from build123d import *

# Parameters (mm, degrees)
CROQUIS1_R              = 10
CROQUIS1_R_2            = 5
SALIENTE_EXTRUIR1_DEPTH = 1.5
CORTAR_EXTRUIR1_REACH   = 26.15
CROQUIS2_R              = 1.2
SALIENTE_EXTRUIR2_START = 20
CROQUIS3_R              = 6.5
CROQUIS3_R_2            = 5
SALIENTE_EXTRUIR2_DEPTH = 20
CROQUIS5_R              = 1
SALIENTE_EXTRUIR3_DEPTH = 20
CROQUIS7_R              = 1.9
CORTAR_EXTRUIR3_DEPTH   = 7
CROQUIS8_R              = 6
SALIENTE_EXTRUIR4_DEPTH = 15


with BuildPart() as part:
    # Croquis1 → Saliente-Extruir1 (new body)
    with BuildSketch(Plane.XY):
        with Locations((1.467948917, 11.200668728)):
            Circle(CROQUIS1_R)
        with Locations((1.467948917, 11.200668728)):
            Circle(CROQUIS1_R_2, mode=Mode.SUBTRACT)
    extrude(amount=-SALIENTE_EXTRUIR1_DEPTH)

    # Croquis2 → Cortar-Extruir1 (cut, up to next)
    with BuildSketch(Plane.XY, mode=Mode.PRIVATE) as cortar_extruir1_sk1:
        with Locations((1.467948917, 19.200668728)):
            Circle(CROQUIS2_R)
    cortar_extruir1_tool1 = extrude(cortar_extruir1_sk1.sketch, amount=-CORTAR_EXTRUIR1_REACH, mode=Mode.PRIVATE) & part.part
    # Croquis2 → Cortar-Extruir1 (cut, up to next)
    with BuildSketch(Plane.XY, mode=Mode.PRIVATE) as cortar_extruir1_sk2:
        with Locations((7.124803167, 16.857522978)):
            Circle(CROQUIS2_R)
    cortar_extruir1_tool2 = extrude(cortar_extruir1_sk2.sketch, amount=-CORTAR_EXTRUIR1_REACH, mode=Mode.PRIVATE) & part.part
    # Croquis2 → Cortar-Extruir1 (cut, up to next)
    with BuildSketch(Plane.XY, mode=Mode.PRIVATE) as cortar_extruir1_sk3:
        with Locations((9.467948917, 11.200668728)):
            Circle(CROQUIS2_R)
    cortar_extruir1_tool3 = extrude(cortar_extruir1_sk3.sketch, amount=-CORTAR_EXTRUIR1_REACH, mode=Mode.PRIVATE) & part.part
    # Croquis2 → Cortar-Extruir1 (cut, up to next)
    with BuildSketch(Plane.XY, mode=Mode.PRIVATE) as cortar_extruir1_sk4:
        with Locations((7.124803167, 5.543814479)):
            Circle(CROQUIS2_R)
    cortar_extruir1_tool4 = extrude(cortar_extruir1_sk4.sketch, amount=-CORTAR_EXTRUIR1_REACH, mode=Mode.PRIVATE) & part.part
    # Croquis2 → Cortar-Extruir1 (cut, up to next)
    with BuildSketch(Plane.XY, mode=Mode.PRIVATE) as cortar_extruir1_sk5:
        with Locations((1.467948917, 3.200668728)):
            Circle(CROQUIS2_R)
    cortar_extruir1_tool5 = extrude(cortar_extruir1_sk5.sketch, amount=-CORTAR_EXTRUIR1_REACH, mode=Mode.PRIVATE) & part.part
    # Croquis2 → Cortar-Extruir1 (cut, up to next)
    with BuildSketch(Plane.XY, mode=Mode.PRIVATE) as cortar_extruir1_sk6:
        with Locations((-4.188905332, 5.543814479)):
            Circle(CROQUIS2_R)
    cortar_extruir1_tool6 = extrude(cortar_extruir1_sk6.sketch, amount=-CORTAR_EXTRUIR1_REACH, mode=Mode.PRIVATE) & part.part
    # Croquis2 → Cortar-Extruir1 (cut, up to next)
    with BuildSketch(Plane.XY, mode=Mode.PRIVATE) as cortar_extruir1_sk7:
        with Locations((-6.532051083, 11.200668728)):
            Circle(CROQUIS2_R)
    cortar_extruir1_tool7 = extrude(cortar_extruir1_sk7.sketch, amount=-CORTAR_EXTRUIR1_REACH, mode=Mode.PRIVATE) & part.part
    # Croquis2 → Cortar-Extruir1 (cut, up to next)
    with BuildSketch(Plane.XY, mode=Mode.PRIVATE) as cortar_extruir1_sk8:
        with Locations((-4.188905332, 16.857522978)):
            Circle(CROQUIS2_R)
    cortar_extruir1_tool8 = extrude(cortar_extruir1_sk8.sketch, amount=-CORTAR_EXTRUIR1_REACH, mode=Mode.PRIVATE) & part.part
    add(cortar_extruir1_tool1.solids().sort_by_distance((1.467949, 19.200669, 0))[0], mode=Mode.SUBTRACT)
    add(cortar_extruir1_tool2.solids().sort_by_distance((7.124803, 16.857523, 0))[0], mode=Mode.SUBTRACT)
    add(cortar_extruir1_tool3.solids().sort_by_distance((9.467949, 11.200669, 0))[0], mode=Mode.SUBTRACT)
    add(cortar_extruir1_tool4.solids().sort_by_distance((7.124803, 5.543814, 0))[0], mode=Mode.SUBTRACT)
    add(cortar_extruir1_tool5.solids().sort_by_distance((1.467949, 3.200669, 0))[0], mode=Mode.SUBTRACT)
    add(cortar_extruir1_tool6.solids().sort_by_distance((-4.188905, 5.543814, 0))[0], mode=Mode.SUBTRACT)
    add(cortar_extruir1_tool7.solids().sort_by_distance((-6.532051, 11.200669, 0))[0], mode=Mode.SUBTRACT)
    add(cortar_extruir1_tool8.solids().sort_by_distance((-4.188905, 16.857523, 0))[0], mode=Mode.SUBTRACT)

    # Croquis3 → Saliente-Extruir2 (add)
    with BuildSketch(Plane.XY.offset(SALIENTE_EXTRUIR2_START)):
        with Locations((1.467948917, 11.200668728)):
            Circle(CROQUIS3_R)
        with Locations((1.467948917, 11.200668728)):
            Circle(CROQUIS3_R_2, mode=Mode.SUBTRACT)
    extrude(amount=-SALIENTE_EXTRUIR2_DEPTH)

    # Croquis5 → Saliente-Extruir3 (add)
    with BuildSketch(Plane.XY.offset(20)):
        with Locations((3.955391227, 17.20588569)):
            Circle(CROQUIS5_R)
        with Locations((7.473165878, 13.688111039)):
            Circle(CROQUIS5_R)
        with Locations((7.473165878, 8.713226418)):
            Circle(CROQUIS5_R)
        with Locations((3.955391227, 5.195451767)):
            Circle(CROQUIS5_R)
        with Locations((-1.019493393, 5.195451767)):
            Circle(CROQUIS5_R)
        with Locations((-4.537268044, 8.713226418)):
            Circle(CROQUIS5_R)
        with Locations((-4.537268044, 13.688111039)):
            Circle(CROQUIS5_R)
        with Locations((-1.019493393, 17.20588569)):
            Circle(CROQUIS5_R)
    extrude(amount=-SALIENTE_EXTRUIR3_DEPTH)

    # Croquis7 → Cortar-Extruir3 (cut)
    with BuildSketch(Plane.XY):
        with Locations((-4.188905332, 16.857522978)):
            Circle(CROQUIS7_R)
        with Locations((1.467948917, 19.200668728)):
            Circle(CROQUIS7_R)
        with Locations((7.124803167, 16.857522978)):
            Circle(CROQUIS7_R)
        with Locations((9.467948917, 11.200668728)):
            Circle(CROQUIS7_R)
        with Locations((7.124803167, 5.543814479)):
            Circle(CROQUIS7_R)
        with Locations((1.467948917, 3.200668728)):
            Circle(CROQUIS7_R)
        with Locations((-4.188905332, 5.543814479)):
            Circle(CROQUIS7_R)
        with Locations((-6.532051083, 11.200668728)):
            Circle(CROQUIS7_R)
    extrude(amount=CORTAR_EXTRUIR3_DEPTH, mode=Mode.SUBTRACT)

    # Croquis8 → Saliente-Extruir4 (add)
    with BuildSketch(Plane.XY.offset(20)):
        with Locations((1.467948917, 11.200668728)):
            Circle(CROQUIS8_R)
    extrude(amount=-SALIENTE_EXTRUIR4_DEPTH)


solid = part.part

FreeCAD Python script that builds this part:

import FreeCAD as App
import Part
import Sketcher
from FreeCAD import Vector
Q = App.Units.Quantity

doc = App.newDocument("Part")
body = doc.addObject("PartDesign::Body", "Body")

# Sketch on XY plane
sketch1 = body.newObject("Sketcher::SketchObject", "Sketch")
sketch1.AttachmentSupport = (doc.getObject("XY_Plane"), [""])
sketch1.MapMode = "FlatFace"
sketch1.addGeometry(Part.Circle(Vector(1, 11, 0), Vector(0, 0, 1), 10), False)
sketch1.addGeometry(Part.Circle(Vector(1, 11, 0), Vector(0, 0, 1), 5), False)
sketch1.addConstraint(Sketcher.Constraint("Coincident", 1, 3, 0, 3))
sketch1.addConstraint(Sketcher.Constraint("Diameter", 0, Q("20 mm")))
sketch1.addConstraint(Sketcher.Constraint("Diameter", 1, Q("10 mm")))
sketch1.addConstraint(Sketcher.Constraint("DistanceX", -1, 1, 0, 3, Q("1.467949 mm")))
sketch1.addConstraint(Sketcher.Constraint("DistanceY", -1, 1, 0, 3, Q("11.200669 mm")))
pad1 = body.newObject("PartDesign::Pad", "Pad")
pad1.Profile = sketch1
pad1.Length = 1.5
pad1.Reversed = True

# Sketch on XY plane
sketch2 = body.newObject("Sketcher::SketchObject", "Sketch001")
sketch2.AttachmentSupport = (doc.getObject("XY_Plane"), [""])
sketch2.MapMode = "FlatFace"
sketch2.addGeometry(Part.Circle(Vector(1.5, 19.2, 0), Vector(0, 0, 1), 1.2), False)
sketch2.addConstraint(Sketcher.Constraint("Diameter", 0, Q("2.4 mm")))
sketch2.addConstraint(Sketcher.Constraint("DistanceX", -1, 1, 0, 3, Q("1.467949 mm")))
sketch2.addConstraint(Sketcher.Constraint("DistanceY", -1, 1, 0, 3, Q("19.200669 mm")))
pocket1 = body.newObject("PartDesign::Pocket", "Pocket")
pocket1.Profile = sketch2
pocket1.Type = "UpToFirst"

# Sketch on XY plane
sketch3 = body.newObject("Sketcher::SketchObject", "Sketch002")
sketch3.AttachmentSupport = (doc.getObject("XY_Plane"), [""])
sketch3.MapMode = "FlatFace"
sketch3.addGeometry(Part.Circle(Vector(7.1, 16.9, 0), Vector(0, 0, 1), 1.2), False)
sketch3.addConstraint(Sketcher.Constraint("Diameter", 0, Q("2.4 mm")))
sketch3.addConstraint(Sketcher.Constraint("DistanceX", -1, 1, 0, 3, Q("7.124803 mm")))
sketch3.addConstraint(Sketcher.Constraint("DistanceY", -1, 1, 0, 3, Q("16.857523 mm")))
pocket2 = body.newObject("PartDesign::Pocket", "Pocket001")
pocket2.Profile = sketch3
pocket2.Type = "UpToFirst"

# Sketch on XY plane
sketch4 = body.newObject("Sketcher::SketchObject", "Sketch003")
sketch4.AttachmentSupport = (doc.getObject("XY_Plane"), [""])
sketch4.MapMode = "FlatFace"
sketch4.addGeometry(Part.Circle(Vector(9.5, 11.2, 0), Vector(0, 0, 1), 1.2), False)
sketch4.addConstraint(Sketcher.Constraint("Diameter", 0, Q("2.4 mm")))
sketch4.addConstraint(Sketcher.Constraint("DistanceX", -1, 1, 0, 3, Q("9.467949 mm")))
sketch4.addConstraint(Sketcher.Constraint("DistanceY", -1, 1, 0, 3, Q("11.200669 mm")))
pocket3 = body.newObject("PartDesign::Pocket", "Pocket002")
pocket3.Profile = sketch4
pocket3.Type = "UpToFirst"

# Sketch on XY plane
sketch5 = body.newObject("Sketcher::SketchObject", "Sketch004")
sketch5.AttachmentSupport = (doc.getObject("XY_Plane"), [""])
sketch5.MapMode = "FlatFace"
sketch5.addGeometry(Part.Circle(Vector(7.1, 5.5, 0), Vector(0, 0, 1), 1.2), False)
sketch5.addConstraint(Sketcher.Constraint("Diameter", 0, Q("2.4 mm")))
sketch5.addConstraint(Sketcher.Constraint("DistanceX", -1, 1, 0, 3, Q("7.124803 mm")))
sketch5.addConstraint(Sketcher.Constraint("DistanceY", -1, 1, 0, 3, Q("5.543814 mm")))
pocket4 = body.newObject("PartDesign::Pocket", "Pocket003")
pocket4.Profile = sketch5
pocket4.Type = "UpToFirst"

# Sketch on XY plane
sketch6 = body.newObject("Sketcher::SketchObject", "Sketch005")
sketch6.AttachmentSupport = (doc.getObject("XY_Plane"), [""])
sketch6.MapMode = "FlatFace"
sketch6.addGeometry(Part.Circle(Vector(1.5, 3.2, 0), Vector(0, 0, 1), 1.2), False)
sketch6.addConstraint(Sketcher.Constraint("Diameter", 0, Q("2.4 mm")))
sketch6.addConstraint(Sketcher.Constraint("DistanceX", -1, 1, 0, 3, Q("1.467949 mm")))
sketch6.addConstraint(Sketcher.Constraint("DistanceY", -1, 1, 0, 3, Q("3.200669 mm")))
pocket5 = body.newObject("PartDesign::Pocket", "Pocket004")
pocket5.Profile = sketch6
pocket5.Type = "UpToFirst"

# Sketch on XY plane
sketch7 = body.newObject("Sketcher::SketchObject", "Sketch006")
sketch7.AttachmentSupport = (doc.getObject("XY_Plane"), [""])
sketch7.MapMode = "FlatFace"
sketch7.addGeometry(Part.Circle(Vector(-4.2, 5.5, 0), Vector(0, 0, 1), 1.2), False)
sketch7.addConstraint(Sketcher.Constraint("Diameter", 0, Q("2.4 mm")))
sketch7.addConstraint(Sketcher.Constraint("DistanceX", 0, 3, -1, 1, Q("4.188905 mm")))
sketch7.addConstraint(Sketcher.Constraint("DistanceY", -1, 1, 0, 3, Q("5.543814 mm")))
pocket6 = body.newObject("PartDesign::Pocket", "Pocket005")
pocket6.Profile = sketch7
pocket6.Type = "UpToFirst"

# Sketch on XY plane
sketch8 = body.newObject("Sketcher::SketchObject", "Sketch007")
sketch8.AttachmentSupport = (doc.getObject("XY_Plane"), [""])
sketch8.MapMode = "FlatFace"
sketch8.addGeometry(Part.Circle(Vector(-6.5, 11.2, 0), Vector(0, 0, 1), 1.2), False)
sketch8.addConstraint(Sketcher.Constraint("Diameter", 0, Q("2.4 mm")))
sketch8.addConstraint(Sketcher.Constraint("DistanceX", 0, 3, -1, 1, Q("6.532051 mm")))
sketch8.addConstraint(Sketcher.Constraint("DistanceY", -1, 1, 0, 3, Q("11.200669 mm")))
pocket7 = body.newObject("PartDesign::Pocket", "Pocket006")
pocket7.Profile = sketch8
pocket7.Type = "UpToFirst"

# Sketch on XY plane
sketch9 = body.newObject("Sketcher::SketchObject", "Sketch008")
sketch9.AttachmentSupport = (doc.getObject("XY_Plane"), [""])
sketch9.MapMode = "FlatFace"
sketch9.addGeometry(Part.Circle(Vector(-4.2, 16.9, 0), Vector(0, 0, 1), 1.2), False)
sketch9.addConstraint(Sketcher.Constraint("Diameter", 0, Q("2.4 mm")))
sketch9.addConstraint(Sketcher.Constraint("DistanceX", 0, 3, -1, 1, Q("4.188905 mm")))
sketch9.addConstraint(Sketcher.Constraint("DistanceY", -1, 1, 0, 3, Q("16.857523 mm")))
pocket8 = body.newObject("PartDesign::Pocket", "Pocket007")
pocket8.Profile = sketch9
pocket8.Type = "UpToFirst"

# Sketch on XY plane
sketch10 = body.newObject("Sketcher::SketchObject", "Sketch009")
sketch10.AttachmentSupport = (doc.getObject("XY_Plane"), [""])
sketch10.MapMode = "FlatFace"
sketch10.AttachmentOffset = App.Placement(Vector(0, 0, 20), App.Rotation())
sketch10.addGeometry(Part.Circle(Vector(1, 11, 0), Vector(0, 0, 1), 6), False)
sketch10.addGeometry(Part.Circle(Vector(1, 11, 0), Vector(0, 0, 1), 5), False)
sketch10.addConstraint(Sketcher.Constraint("Coincident", 1, 3, 0, 3))
sketch10.addConstraint(Sketcher.Constraint("Diameter", 0, Q("13 mm")))
sketch10.addConstraint(Sketcher.Constraint("Diameter", 1, Q("10 mm")))
sketch10.addConstraint(Sketcher.Constraint("DistanceX", -1, 1, 0, 3, Q("1.467949 mm")))
sketch10.addConstraint(Sketcher.Constraint("DistanceY", -1, 1, 0, 3, Q("11.200669 mm")))
pad2 = body.newObject("PartDesign::Pad", "Pad001")
pad2.Profile = sketch10
pad2.Length = 20
pad2.Reversed = True

# Sketch on XY plane
sketch11 = body.newObject("Sketcher::SketchObject", "Sketch010")
sketch11.AttachmentSupport = (doc.getObject("XY_Plane"), [""])
sketch11.MapMode = "FlatFace"
sketch11.AttachmentOffset = App.Placement(Vector(0, 0, 20), App.Rotation())
sketch11.addGeometry(Part.Circle(Vector(4, 17.2, 0), Vector(0, 0, 1), 1), False)
sketch11.addGeometry(Part.Circle(Vector(7.5, 13.7, 0), Vector(0, 0, 1), 1), False)
sketch11.addGeometry(Part.Circle(Vector(7.5, 8.7, 0), Vector(0, 0, 1), 1), False)
sketch11.addGeometry(Part.Circle(Vector(4, 5.2, 0), Vector(0, 0, 1), 1), False)
sketch11.addGeometry(Part.Circle(Vector(-1, 5.2, 0), Vector(0, 0, 1), 1), False)
sketch11.addGeometry(Part.Circle(Vector(-4.5, 8.7, 0), Vector(0, 0, 1), 1), False)
sketch11.addGeometry(Part.Circle(Vector(-4.5, 13.7, 0), Vector(0, 0, 1), 1), False)
sketch11.addGeometry(Part.Circle(Vector(-1, 17.2, 0), Vector(0, 0, 1), 1), False)
sketch11.addConstraint(Sketcher.Constraint("Equal", 0, 1))
sketch11.addConstraint(Sketcher.Constraint("Equal", 1, 2))
sketch11.addConstraint(Sketcher.Constraint("Equal", 2, 3))
sketch11.addConstraint(Sketcher.Constraint("Equal", 3, 4))
sketch11.addConstraint(Sketcher.Constraint("Equal", 4, 5))
sketch11.addConstraint(Sketcher.Constraint("Equal", 5, 6))
sketch11.addConstraint(Sketcher.Constraint("Equal", 6, 7))
sketch11.addConstraint(Sketcher.Constraint("Horizontal", 3, 3, 4, 3))
sketch11.addConstraint(Sketcher.Constraint("Horizontal", 2, 3, 5, 3))
sketch11.addConstraint(Sketcher.Constraint("Horizontal", 1, 3, 6, 3))
sketch11.addConstraint(Sketcher.Constraint("Horizontal", 0, 3, 7, 3))
sketch11.addConstraint(Sketcher.Constraint("Vertical", 1, 3, 2, 3))
sketch11.addConstraint(Sketcher.Constraint("Vertical", 0, 3, 3, 3))
sketch11.addConstraint(Sketcher.Constraint("Vertical", 5, 3, 6, 3))
sketch11.addConstraint(Sketcher.Constraint("Vertical", 4, 3, 7, 3))
sketch11.addConstraint(Sketcher.Constraint("Diameter", 0, Q("2 mm")))
sketch11.addConstraint(Sketcher.Constraint("DistanceX", -1, 1, 0, 3, Q("3.955391 mm")))
sketch11.addConstraint(Sketcher.Constraint("DistanceY", -1, 1, 1, 3, Q("13.688111 mm")))
sketch11.addConstraint(Sketcher.Constraint("DistanceY", -1, 1, 3, 3, Q("5.195452 mm")))
sketch11.addConstraint(Sketcher.Constraint("DistanceX", 5, 3, -1, 1, Q("4.537268 mm")))
sketch11.addConstraint(Sketcher.Constraint("DistanceY", 2, 3, 0, 3, Q("8.492659 mm")))
sketch11.addConstraint(Sketcher.Constraint("DistanceX", 4, 3, 2, 3, Q("8.492659 mm")))
sketch11.addConstraint(Sketcher.Constraint("DistanceY", -1, 1, 0, 3, Q("17.205886 mm")))
sketch11.addConstraint(Sketcher.Constraint("DistanceX", -1, 1, 1, 3, Q("7.473166 mm")))
pad3 = body.newObject("PartDesign::Pad", "Pad002")
pad3.Profile = sketch11
pad3.Length = 20
pad3.Reversed = True

# Sketch on XY plane
sketch12 = body.newObject("Sketcher::SketchObject", "Sketch011")
sketch12.AttachmentSupport = (doc.getObject("XY_Plane"), [""])
sketch12.MapMode = "FlatFace"
sketch12.addGeometry(Part.Circle(Vector(-4.2, 16.9, 0), Vector(0, 0, 1), 1.9), False)
sketch12.addGeometry(Part.Circle(Vector(1.5, 19.2, 0), Vector(0, 0, 1), 1.9), False)
sketch12.addGeometry(Part.Circle(Vector(7.1, 16.9, 0), Vector(0, 0, 1), 1.9), False)
sketch12.addGeometry(Part.Circle(Vector(9.5, 11.2, 0), Vector(0, 0, 1), 1.9), False)
sketch12.addGeometry(Part.Circle(Vector(7.1, 5.5, 0), Vector(0, 0, 1), 1.9), False)
sketch12.addGeometry(Part.Circle(Vector(1.5, 3.2, 0), Vector(0, 0, 1), 1.9), False)
sketch12.addGeometry(Part.Circle(Vector(-4.2, 5.5, 0), Vector(0, 0, 1), 1.9), False)
sketch12.addGeometry(Part.Circle(Vector(-6.5, 11.2, 0), Vector(0, 0, 1), 1.9), False)
sketch12.addConstraint(Sketcher.Constraint("Equal", 0, 1))
sketch12.addConstraint(Sketcher.Constraint("Equal", 1, 2))
sketch12.addConstraint(Sketcher.Constraint("Equal", 2, 3))
sketch12.addConstraint(Sketcher.Constraint("Equal", 3, 4))
sketch12.addConstraint(Sketcher.Constraint("Equal", 4, 5))
sketch12.addConstraint(Sketcher.Constraint("Equal", 5, 6))
sketch12.addConstraint(Sketcher.Constraint("Equal", 6, 7))
sketch12.addConstraint(Sketcher.Constraint("Horizontal", 0, 3, 2, 3))
sketch12.addConstraint(Sketcher.Constraint("Horizontal", 4, 3, 6, 3))
sketch12.addConstraint(Sketcher.Constraint("Horizontal", 3, 3, 7, 3))
sketch12.addConstraint(Sketcher.Constraint("Vertical", 2, 3, 4, 3))
sketch12.addConstraint(Sketcher.Constraint("Vertical", 1, 3, 5, 3))
sketch12.addConstraint(Sketcher.Constraint("Vertical", 0, 3, 6, 3))
sketch12.addConstraint(Sketcher.Constraint("Diameter", 0, Q("3.8 mm")))
sketch12.addConstraint(Sketcher.Constraint("DistanceX", 1, 3, 3, 3, Q("8 mm")))
sketch12.addConstraint(Sketcher.Constraint("DistanceY", 3, 3, 1, 3, Q("8 mm")))
sketch12.addConstraint(Sketcher.Constraint("DistanceY", 5, 3, 3, 3, Q("8 mm")))
sketch12.addConstraint(Sketcher.Constraint("DistanceX", 7, 3, 1, 3, Q("8 mm")))
sketch12.addConstraint(Sketcher.Constraint("DistanceX", -1, 1, 1, 3, Q("1.467949 mm")))
sketch12.addConstraint(Sketcher.Constraint("DistanceY", -1, 1, 1, 3, Q("19.200669 mm")))
sketch12.addConstraint(Sketcher.Constraint("DistanceX", 0, 3, 2, 3, Q("11.313708 mm")))
sketch12.addConstraint(Sketcher.Constraint("DistanceY", 4, 3, 2, 3, Q("11.313708 mm")))
sketch12.addConstraint(Sketcher.Constraint("DistanceX", 0, 3, -1, 1, Q("4.188905 mm")))
sketch12.addConstraint(Sketcher.Constraint("DistanceY", -1, 1, 0, 3, Q("16.857523 mm")))
pocket9 = body.newObject("PartDesign::Pocket", "Pocket008")
pocket9.Profile = sketch12
pocket9.Length = 7
pocket9.Reversed = True

# Sketch on XY plane
sketch13 = body.newObject("Sketcher::SketchObject", "Sketch012")
sketch13.AttachmentSupport = (doc.getObject("XY_Plane"), [""])
sketch13.MapMode = "FlatFace"
sketch13.AttachmentOffset = App.Placement(Vector(0, 0, 20), App.Rotation())
sketch13.addGeometry(Part.Circle(Vector(1, 11, 0), Vector(0, 0, 1), 6), False)
sketch13.addConstraint(Sketcher.Constraint("Diameter", 0, Q("12 mm")))
sketch13.addConstraint(Sketcher.Constraint("DistanceX", -1, 1, 0, 3, Q("1.467949 mm")))
sketch13.addConstraint(Sketcher.Constraint("DistanceY", -1, 1, 0, 3, Q("11.200669 mm")))
pad4 = body.newObject("PartDesign::Pad", "Pad003")
pad4.Profile = sketch13
pad4.Length = 15
pad4.Reversed = True

doc.recompute()
